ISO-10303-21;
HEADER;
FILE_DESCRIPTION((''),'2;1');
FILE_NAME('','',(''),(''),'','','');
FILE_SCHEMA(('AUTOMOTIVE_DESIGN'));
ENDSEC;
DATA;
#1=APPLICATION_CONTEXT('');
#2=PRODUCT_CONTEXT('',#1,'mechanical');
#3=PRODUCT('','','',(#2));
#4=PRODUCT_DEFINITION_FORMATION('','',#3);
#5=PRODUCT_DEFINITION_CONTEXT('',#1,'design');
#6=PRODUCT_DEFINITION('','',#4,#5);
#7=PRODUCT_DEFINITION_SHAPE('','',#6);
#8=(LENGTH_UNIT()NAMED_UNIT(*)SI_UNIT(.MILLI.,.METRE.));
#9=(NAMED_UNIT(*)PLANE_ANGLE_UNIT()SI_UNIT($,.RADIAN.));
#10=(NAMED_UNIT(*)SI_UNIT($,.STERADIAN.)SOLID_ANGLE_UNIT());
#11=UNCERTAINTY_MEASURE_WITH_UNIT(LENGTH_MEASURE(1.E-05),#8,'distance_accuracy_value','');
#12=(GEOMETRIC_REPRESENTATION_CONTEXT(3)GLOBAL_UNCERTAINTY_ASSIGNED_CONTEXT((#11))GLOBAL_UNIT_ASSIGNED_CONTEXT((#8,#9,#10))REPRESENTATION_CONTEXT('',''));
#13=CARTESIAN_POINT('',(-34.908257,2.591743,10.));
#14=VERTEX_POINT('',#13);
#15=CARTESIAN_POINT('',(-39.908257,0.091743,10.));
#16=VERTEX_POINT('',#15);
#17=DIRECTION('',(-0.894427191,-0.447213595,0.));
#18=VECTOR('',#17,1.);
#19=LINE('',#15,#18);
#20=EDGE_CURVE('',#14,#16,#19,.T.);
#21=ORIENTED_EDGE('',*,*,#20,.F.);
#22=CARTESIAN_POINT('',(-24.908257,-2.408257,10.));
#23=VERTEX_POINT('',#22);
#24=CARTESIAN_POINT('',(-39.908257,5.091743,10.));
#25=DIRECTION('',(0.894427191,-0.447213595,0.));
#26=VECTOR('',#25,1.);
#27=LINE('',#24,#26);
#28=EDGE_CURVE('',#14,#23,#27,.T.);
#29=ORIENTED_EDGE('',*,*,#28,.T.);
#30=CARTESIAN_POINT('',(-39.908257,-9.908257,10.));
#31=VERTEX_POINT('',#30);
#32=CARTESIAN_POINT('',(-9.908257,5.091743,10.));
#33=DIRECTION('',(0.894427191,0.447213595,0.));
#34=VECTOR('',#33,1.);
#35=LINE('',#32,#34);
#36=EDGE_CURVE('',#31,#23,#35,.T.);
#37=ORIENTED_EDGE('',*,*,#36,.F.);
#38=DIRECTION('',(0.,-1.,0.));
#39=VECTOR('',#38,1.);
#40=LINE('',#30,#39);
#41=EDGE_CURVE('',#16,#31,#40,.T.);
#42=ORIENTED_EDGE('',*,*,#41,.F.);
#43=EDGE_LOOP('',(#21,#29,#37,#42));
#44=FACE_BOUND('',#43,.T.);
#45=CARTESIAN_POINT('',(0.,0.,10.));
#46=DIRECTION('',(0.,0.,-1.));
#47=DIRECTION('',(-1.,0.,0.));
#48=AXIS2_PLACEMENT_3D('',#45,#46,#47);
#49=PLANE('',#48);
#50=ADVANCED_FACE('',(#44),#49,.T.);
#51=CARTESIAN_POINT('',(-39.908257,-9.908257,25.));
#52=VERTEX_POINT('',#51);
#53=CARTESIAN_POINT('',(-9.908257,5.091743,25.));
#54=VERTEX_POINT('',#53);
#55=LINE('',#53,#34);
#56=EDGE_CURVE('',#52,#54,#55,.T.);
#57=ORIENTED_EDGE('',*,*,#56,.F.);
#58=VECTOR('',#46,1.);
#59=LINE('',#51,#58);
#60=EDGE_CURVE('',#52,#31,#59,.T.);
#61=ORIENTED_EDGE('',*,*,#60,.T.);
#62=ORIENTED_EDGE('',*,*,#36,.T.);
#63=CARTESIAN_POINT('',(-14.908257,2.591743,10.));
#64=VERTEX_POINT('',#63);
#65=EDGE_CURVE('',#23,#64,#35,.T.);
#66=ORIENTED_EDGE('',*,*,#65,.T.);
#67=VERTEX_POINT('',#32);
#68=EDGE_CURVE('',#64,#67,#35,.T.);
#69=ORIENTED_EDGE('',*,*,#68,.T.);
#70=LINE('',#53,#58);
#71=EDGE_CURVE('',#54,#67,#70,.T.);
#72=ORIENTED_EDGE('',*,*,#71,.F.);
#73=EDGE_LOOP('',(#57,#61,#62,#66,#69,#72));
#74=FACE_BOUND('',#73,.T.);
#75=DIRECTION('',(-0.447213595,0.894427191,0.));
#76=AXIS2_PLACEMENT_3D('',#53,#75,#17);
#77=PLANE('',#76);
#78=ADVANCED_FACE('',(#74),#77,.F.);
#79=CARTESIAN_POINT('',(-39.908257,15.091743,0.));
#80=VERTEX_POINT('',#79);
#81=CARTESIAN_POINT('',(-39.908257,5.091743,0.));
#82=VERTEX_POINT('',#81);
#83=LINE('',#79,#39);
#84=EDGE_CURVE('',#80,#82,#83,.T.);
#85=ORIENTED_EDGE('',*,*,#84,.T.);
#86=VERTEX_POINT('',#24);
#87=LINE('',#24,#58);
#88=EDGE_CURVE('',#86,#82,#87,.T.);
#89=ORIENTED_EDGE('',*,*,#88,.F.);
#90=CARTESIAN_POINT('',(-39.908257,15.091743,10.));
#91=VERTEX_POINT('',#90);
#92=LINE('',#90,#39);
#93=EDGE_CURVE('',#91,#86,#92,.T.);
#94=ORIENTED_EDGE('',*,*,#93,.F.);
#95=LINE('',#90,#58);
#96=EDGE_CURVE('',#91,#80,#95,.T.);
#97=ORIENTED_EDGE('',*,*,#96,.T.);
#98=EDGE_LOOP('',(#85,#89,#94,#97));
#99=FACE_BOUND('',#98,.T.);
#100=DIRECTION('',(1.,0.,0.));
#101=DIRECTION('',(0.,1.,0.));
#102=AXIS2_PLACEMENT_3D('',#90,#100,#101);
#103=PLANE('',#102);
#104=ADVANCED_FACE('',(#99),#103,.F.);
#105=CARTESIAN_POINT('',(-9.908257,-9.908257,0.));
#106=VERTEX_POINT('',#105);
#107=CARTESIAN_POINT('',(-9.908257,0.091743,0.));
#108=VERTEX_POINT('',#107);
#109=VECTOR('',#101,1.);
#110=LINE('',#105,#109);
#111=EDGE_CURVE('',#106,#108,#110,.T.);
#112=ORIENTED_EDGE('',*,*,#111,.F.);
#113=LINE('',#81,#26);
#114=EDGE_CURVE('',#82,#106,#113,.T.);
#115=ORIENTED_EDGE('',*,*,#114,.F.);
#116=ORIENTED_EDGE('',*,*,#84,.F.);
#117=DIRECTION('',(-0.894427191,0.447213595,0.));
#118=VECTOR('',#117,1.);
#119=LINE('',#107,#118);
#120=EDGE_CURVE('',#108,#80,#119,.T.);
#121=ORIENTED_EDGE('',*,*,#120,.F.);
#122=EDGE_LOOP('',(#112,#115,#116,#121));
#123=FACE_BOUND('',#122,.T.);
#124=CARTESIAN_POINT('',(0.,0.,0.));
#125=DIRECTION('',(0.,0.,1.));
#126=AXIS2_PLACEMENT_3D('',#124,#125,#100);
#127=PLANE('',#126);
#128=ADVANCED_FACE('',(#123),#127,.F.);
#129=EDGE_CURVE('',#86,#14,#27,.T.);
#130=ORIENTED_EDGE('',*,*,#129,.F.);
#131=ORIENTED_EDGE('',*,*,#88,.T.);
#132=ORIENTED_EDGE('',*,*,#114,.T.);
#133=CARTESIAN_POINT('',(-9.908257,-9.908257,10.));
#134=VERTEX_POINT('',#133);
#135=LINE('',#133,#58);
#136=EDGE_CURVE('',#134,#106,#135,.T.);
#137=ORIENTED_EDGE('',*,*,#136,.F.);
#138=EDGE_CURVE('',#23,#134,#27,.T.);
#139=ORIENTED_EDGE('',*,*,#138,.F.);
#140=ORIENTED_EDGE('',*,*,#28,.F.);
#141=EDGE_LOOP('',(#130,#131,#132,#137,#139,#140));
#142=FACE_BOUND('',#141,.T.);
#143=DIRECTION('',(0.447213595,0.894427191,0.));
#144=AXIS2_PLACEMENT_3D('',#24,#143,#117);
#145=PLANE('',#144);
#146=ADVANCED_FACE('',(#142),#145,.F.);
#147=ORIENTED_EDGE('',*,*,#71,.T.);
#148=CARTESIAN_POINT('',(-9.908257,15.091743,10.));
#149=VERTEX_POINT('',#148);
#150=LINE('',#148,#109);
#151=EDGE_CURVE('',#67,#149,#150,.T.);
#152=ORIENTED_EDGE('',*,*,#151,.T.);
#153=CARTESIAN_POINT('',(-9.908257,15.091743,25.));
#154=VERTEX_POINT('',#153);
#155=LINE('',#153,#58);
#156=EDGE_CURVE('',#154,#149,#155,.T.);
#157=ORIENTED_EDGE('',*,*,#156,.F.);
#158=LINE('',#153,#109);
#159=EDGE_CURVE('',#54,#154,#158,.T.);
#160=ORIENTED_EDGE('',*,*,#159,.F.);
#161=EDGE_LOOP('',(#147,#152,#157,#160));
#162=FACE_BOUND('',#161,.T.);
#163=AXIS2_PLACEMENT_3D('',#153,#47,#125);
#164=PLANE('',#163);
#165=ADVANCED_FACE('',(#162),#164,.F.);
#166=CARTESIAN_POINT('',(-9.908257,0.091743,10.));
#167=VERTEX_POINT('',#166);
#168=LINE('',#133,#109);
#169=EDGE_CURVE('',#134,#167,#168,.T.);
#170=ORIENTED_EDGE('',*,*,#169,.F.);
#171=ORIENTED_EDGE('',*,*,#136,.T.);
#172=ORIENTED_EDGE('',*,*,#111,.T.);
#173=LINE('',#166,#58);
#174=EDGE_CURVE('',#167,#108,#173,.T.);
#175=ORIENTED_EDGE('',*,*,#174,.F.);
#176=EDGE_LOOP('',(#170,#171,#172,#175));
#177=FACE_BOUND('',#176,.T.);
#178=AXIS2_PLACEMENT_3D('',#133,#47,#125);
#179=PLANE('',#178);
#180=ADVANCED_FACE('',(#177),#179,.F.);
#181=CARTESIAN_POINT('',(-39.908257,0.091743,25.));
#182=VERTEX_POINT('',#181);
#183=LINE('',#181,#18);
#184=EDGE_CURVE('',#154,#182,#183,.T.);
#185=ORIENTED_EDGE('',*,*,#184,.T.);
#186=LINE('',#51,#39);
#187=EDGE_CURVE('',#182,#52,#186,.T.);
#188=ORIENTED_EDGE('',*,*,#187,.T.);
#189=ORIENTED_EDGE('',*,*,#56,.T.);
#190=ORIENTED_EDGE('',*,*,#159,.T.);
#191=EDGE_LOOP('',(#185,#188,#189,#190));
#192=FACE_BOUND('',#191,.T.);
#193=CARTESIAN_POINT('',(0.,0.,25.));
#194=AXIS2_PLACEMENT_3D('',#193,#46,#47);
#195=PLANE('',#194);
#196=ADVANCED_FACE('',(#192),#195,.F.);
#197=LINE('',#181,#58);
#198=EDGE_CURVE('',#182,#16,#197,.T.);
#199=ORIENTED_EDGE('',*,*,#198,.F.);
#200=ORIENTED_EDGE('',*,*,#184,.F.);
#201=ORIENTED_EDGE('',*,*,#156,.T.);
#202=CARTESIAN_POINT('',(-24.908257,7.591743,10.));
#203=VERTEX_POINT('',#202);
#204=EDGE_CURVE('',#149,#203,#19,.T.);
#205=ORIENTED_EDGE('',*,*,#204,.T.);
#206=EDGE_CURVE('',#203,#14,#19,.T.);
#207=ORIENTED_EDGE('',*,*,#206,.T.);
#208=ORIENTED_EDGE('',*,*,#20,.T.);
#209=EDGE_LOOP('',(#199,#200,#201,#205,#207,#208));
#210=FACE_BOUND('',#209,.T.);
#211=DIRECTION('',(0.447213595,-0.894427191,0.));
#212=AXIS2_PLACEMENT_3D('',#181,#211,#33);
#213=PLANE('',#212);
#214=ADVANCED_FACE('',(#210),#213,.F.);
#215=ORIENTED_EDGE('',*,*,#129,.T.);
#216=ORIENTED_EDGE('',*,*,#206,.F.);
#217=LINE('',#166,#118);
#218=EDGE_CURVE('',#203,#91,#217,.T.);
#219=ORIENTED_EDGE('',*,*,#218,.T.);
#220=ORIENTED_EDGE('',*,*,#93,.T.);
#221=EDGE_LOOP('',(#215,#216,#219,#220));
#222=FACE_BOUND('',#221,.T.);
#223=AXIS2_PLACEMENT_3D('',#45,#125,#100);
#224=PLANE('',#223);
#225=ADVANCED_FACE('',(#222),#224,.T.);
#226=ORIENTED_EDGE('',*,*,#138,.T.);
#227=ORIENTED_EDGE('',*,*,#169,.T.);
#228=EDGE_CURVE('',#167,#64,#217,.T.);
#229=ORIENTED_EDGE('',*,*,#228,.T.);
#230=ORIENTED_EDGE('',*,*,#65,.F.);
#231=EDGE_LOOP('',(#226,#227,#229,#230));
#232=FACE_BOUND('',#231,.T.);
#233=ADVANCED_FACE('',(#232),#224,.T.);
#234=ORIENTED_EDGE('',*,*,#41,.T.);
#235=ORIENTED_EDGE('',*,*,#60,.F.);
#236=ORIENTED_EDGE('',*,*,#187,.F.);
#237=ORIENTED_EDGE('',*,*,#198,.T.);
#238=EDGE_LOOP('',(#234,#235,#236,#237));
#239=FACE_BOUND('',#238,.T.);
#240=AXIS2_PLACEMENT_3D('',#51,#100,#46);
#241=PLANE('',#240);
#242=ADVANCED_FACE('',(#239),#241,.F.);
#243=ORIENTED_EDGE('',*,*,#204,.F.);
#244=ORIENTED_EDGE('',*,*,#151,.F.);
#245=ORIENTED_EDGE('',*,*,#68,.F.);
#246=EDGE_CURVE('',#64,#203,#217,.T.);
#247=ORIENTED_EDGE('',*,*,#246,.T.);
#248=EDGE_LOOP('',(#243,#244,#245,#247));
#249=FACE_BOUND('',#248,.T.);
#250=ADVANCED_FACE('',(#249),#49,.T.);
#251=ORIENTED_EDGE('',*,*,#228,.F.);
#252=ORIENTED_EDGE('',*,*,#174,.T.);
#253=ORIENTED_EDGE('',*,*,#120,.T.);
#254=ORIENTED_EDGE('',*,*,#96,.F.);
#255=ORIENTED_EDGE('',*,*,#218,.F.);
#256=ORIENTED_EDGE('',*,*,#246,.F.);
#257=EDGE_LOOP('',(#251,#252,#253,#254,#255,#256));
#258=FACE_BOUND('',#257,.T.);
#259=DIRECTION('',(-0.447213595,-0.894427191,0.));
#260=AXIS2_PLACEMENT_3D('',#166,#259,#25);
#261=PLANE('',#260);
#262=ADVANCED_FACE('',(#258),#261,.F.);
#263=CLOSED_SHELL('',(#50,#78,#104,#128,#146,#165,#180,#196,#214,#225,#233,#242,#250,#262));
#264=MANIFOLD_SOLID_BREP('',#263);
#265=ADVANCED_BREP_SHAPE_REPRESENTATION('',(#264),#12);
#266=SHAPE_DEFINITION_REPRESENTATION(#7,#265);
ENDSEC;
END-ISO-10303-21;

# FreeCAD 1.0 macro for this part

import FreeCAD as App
import Part
import Sketcher
from FreeCAD import Vector
Q = App.Units.Quantity

doc = App.newDocument("Part")
params = doc.addObject("Spreadsheet::Sheet", "Params")
for row, (alias, value) in enumerate([
    ("sketch1_height", "10 mm"),
    ("pad1_length", "10 mm"),
    ("sketch2_height", "10 mm"),
    ("pad2_length", "15 mm"),
], start=1):
    params.set(f"A{row}", alias)
    params.set(f"B{row}", "=" + value)
    params.setAlias(f"B{row}", alias)

body = doc.addObject("PartDesign::Body", "Body")

# Sketch on XY plane
sketch1 = doc.addObject("Sketcher::SketchObject", "Sketch")
body.addObject(sketch1)
sketch1.AttachmentSupport = (doc.XY_Plane, [""])
sketch1.MapMode = "FlatFace"
sketch1.addGeometry([
    Part.LineSegment(Vector(-40, 15, 0), Vector(-40, 5, 0)),
    Part.LineSegment(Vector(-40, 5, 0), Vector(-10, -10, 0)),
    Part.LineSegment(Vector(-10, -10, 0), Vector(-10, 0, 0)),
    Part.LineSegment(Vector(-10, 0, 0), Vector(-40, 15, 0)),
], False)
sketch1.addConstraint([
    Sketcher.Constraint("Coincident", 0, 2, 1, 1),
    Sketcher.Constraint("Coincident", 1, 2, 2, 1),
    Sketcher.Constraint("Coincident", 2, 2, 3, 1),
    Sketcher.Constraint("Coincident", 3, 2, 0, 1),
    Sketcher.Constraint("Vertical", 0),
    Sketcher.Constraint("Vertical", 2),
    Sketcher.Constraint("Parallel", 1, 3),
    Sketcher.Constraint("DistanceY", 0, 2, 0, 1, Q("10 mm")),
    Sketcher.Constraint("DistanceX", 0, 2, 1, 2, Q("30 mm")),
    Sketcher.Constraint("DistanceY", 1, 2, 0, 2, Q("15 mm")),
    Sketcher.Constraint("DistanceX", 0, 2, -1, 1, Q("39.908257 mm")),
    Sketcher.Constraint("DistanceY", -1, 1, 0, 2, Q("5.091743 mm")),
])
sketch1.setExpression("Constraints[7]", "Params.sketch1_height")
pad1 = doc.addObject("PartDesign::Pad", "Pad")
body.addObject(pad1)
pad1.Profile = sketch1
pad1.setExpression("Length", "Params.pad1_length")

# Sketch on XY plane
sketch2 = doc.addObject("Sketcher::SketchObject", "Sketch001")
body.addObject(sketch2)
sketch2.AttachmentSupport = (doc.XY_Plane, [""])
sketch2.MapMode = "FlatFace"
sketch2.AttachmentOffset = App.Placement(Vector(0, 0, 10), App.Rotation())
sketch2.addGeometry([
    Part.LineSegment(Vector(-10, 5, 0), Vector(-10, 15, 0)),
    Part.LineSegment(Vector(-10, 15, 0), Vector(-40, 0, 0)),
    Part.LineSegment(Vector(-40, 0, 0), Vector(-40, -10, 0)),
    Part.LineSegment(Vector(-40, -10, 0), Vector(-10, 5, 0)),
], False)
sketch2.addConstraint([
    Sketcher.Constraint("Coincident", 0, 2, 1, 1),
    Sketcher.Constraint("Coincident", 1, 2, 2, 1),
    Sketcher.Constraint("Coincident", 2, 2, 3, 1),
    Sketcher.Constraint("Coincident", 3, 2, 0, 1),
    Sketcher.Constraint("Vertical", 0),
    Sketcher.Constraint("Vertical", 2),
    Sketcher.Constraint("Parallel", 1, 3),
    Sketcher.Constraint("DistanceY", 0, 1, 0, 2, Q("10 mm")),
    Sketcher.Constraint("DistanceX", 1, 2, 0, 2, Q("30 mm")),
    Sketcher.Constraint("DistanceY", 1, 2, 0, 2, Q("15 mm")),
    Sketcher.Constraint("DistanceX", 0, 2, -1, 1, Q("9.908257 mm")),
    Sketcher.Constraint("DistanceY", -1, 1, 0, 2, Q("15.091743 mm")),
])
sketch2.setExpression("Constraints[7]", "Params.sketch2_height")
pad2 = doc.addObject("PartDesign::Pad", "Pad001")
body.addObject(pad2)
pad2.Profile = sketch2
pad2.setExpression("Length", "Params.pad2_length")

doc.recompute()
